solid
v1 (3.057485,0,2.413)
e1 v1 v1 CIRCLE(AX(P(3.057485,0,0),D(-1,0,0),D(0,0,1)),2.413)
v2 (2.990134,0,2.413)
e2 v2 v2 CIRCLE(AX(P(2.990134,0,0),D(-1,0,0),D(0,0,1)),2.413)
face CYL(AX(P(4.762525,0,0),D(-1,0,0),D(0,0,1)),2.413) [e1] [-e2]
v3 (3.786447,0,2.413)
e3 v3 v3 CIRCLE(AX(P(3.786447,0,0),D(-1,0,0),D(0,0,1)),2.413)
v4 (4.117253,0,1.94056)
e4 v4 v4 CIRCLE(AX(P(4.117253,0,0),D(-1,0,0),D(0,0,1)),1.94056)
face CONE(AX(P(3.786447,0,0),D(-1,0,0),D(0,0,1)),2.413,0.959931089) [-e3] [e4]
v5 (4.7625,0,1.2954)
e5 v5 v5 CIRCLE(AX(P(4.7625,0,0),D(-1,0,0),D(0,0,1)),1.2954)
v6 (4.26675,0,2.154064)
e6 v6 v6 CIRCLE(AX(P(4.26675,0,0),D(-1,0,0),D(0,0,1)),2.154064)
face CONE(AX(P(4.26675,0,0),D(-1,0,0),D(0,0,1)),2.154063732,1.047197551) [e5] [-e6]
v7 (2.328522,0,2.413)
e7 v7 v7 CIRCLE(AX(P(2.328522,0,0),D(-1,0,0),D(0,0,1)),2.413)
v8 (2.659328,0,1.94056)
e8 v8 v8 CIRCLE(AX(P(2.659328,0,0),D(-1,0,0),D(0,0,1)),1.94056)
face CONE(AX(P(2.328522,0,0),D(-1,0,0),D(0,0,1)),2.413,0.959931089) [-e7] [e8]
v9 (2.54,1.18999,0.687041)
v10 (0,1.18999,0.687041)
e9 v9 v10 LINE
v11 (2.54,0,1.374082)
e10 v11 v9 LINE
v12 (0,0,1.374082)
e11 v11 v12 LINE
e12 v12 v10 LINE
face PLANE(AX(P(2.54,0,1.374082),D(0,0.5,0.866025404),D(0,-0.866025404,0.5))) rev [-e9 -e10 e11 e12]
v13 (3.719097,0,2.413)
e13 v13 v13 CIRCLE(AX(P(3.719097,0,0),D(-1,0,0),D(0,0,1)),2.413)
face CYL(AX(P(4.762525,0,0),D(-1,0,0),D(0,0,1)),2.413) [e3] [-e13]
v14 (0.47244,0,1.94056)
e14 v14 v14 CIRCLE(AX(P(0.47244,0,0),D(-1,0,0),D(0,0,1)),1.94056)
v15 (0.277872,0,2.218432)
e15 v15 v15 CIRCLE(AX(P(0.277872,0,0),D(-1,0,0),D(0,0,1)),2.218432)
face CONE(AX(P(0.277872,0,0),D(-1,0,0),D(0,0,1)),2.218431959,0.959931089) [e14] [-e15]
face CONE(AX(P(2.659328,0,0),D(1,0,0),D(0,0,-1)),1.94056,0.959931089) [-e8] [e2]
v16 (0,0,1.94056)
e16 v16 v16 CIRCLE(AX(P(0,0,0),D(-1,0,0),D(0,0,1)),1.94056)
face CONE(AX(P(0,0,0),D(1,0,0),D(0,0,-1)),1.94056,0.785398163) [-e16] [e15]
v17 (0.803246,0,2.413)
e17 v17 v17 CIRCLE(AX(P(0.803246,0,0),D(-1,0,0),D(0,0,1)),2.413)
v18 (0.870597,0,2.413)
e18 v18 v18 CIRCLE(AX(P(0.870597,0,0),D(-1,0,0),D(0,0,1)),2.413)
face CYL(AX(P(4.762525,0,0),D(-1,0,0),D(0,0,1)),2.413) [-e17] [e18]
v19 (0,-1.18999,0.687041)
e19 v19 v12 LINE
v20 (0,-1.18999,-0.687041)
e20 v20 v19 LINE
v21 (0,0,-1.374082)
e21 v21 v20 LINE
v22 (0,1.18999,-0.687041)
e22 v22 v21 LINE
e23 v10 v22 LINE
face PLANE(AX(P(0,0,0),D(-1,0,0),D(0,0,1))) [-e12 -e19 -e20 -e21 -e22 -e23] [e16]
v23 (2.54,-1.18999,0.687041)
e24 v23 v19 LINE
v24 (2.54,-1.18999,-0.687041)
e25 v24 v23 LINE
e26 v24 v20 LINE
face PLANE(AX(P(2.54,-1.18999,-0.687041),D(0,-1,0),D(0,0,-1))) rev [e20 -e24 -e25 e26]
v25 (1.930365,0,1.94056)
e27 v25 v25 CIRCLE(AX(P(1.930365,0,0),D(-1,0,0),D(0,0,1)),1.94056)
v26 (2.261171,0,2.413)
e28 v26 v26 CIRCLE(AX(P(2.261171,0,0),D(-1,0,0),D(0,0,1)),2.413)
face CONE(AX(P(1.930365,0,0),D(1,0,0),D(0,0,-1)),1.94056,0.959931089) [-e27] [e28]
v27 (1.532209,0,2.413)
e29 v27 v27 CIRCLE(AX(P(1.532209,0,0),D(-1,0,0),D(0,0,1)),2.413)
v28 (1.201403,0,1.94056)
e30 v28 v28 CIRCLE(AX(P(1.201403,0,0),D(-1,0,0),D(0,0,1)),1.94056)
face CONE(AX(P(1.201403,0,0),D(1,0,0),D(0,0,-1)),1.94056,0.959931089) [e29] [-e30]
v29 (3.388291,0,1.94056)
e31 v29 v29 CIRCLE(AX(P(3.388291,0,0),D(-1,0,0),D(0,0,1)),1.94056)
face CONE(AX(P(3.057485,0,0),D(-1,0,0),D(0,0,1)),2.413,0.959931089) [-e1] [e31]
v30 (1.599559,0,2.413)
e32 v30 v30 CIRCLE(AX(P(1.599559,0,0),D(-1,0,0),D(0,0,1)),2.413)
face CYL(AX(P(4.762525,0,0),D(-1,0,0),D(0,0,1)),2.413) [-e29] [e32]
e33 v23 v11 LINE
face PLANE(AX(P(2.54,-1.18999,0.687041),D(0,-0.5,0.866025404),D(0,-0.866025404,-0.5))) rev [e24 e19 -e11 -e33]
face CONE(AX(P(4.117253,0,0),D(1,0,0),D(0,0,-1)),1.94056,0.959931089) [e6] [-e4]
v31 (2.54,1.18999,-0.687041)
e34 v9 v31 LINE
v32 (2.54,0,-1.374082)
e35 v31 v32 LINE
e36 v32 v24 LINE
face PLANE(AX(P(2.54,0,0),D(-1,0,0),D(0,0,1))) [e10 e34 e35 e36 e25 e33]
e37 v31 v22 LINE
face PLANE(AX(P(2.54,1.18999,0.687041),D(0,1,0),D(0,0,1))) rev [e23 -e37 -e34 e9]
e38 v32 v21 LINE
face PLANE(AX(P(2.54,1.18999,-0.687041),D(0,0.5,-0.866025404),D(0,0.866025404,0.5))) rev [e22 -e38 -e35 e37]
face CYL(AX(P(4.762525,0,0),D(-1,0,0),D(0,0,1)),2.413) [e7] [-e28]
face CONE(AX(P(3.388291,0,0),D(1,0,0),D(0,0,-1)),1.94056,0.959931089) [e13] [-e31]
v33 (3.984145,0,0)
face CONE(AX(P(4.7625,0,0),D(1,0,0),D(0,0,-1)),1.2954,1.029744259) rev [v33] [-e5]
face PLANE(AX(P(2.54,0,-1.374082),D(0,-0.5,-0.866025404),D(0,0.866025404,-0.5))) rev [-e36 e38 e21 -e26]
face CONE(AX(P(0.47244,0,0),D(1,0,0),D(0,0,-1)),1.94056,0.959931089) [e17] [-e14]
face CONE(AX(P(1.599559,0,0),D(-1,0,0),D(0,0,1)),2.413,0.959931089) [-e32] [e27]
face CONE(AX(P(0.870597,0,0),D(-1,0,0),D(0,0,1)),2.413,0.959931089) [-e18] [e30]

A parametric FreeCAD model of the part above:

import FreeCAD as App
import Part
import Sketcher
Q = App.Units.Quantity

doc = App.newDocument("Part")
body = doc.addObject("PartDesign::Body", "Body")

# Sketch on XY plane
sketch1 = body.newObject("Sketcher::SketchObject", "Sketch")
sketch1.AttachmentSupport = (doc.getObject("XY_Plane"), [""])
sketch1.MapMode = "FlatFace"
sketch1.addGeometry([
    Part.LineSegment(App.Vector(4.76, 1.3, 0), App.Vector(3.98, 0, 0)),  # 0
    Part.LineSegment(App.Vector(3.98, 0, 0), App.Vector(0, 0, 0)),  # 1
    Part.LineSegment(App.Vector(0, 0, 0), App.Vector(0, 1.94, 0)),  # 2
    Part.LineSegment(App.Vector(0, 1.94, 0), App.Vector(0.28, 2.22, 0)),  # 3
    Part.LineSegment(App.Vector(0.28, 2.22, 0), App.Vector(0.47, 1.94, 0)),  # 4
    Part.LineSegment(App.Vector(0.47, 1.94, 0), App.Vector(0.8, 2.41, 0)),  # 5
    Part.LineSegment(App.Vector(0.8, 2.41, 0), App.Vector(0.87, 2.41, 0)),  # 6
    Part.LineSegment(App.Vector(0.87, 2.41, 0), App.Vector(1.2, 1.94, 0)),  # 7
    Part.LineSegment(App.Vector(1.2, 1.94, 0), App.Vector(1.53, 2.41, 0)),  # 8
    Part.LineSegment(App.Vector(1.53, 2.41, 0), App.Vector(1.6, 2.41, 0)),  # 9
    Part.LineSegment(App.Vector(1.6, 2.41, 0), App.Vector(1.93, 1.94, 0)),  # 10
    Part.LineSegment(App.Vector(1.93, 1.94, 0), App.Vector(2.26, 2.41, 0)),  # 11
    Part.LineSegment(App.Vector(2.26, 2.41, 0), App.Vector(2.33, 2.41, 0)),  # 12
    Part.LineSegment(App.Vector(2.33, 2.41, 0), App.Vector(2.66, 1.94, 0)),  # 13
    Part.LineSegment(App.Vector(2.66, 1.94, 0), App.Vector(2.99, 2.41, 0)),  # 14
    Part.LineSegment(App.Vector(2.99, 2.41, 0), App.Vector(3.06, 2.41, 0)),  # 15
    Part.LineSegment(App.Vector(3.06, 2.41, 0), App.Vector(3.39, 1.94, 0)),  # 16
    Part.LineSegment(App.Vector(3.39, 1.94, 0), App.Vector(3.72, 2.41, 0)),  # 17
    Part.LineSegment(App.Vector(3.72, 2.41, 0), App.Vector(3.79, 2.41, 0)),  # 18
    Part.LineSegment(App.Vector(3.79, 2.41, 0), App.Vector(4.12, 1.94, 0)),  # 19
    Part.LineSegment(App.Vector(4.12, 1.94, 0), App.Vector(4.27, 2.15, 0)),  # 20
    Part.LineSegment(App.Vector(4.27, 2.15, 0), App.Vector(4.76, 1.3, 0)),  # 21
], False)
sketch1.addConstraint([
    Sketcher.Constraint("Coincident", 0, 2, 1, 1),
    Sketcher.Constraint("Coincident", 1, 2, 2, 1),
    Sketcher.Constraint("Coincident", 2, 2, 3, 1),
    Sketcher.Constraint("Coincident", 3, 2, 4, 1),
    Sketcher.Constraint("Coincident", 4, 2, 5, 1),
    Sketcher.Constraint("Coincident", 5, 2, 6, 1),
    Sketcher.Constraint("Coincident", 6, 2, 7, 1),
    Sketcher.Constraint("Coincident", 7, 2, 8, 1),
    Sketcher.Constraint("Coincident", 8, 2, 9, 1),
    Sketcher.Constraint("Coincident", 9, 2, 10, 1),
    Sketcher.Constraint("Coincident", 10, 2, 11, 1),
    Sketcher.Constraint("Coincident", 11, 2, 12, 1),
    Sketcher.Constraint("Coincident", 12, 2, 13, 1),
    Sketcher.Constraint("Coincident", 13, 2, 14, 1),
    Sketcher.Constraint("Coincident", 14, 2, 15, 1),
    Sketcher.Constraint("Coincident", 15, 2, 16, 1),
    Sketcher.Constraint("Coincident", 16, 2, 17, 1),
    Sketcher.Constraint("Coincident", 17, 2, 18, 1),
    Sketcher.Constraint("Coincident", 18, 2, 19, 1),
    Sketcher.Constraint("Coincident", 19, 2, 20, 1),
    Sketcher.Constraint("Coincident", 20, 2, 21, 1),
    Sketcher.Constraint("Coincident", 21, 2, 0, 1),
    Sketcher.Constraint("Horizontal", 1),
    Sketcher.Constraint("Vertical", 2),
    Sketcher.Constraint("Horizontal", 6),
    Sketcher.Constraint("Horizontal", 9),
    Sketcher.Constraint("Horizontal", 12),
    Sketcher.Constraint("Horizontal", 15),
    Sketcher.Constraint("Horizontal", 18),
    Sketcher.Constraint("Coincident", 1, 2, -1, 1),
    Sketcher.Constraint("Parallel", 4, 7),
    Sketcher.Constraint("Parallel", 5, 8),
    Sketcher.Constraint("Parallel", 7, 10),
    Sketcher.Constraint("Parallel", 8, 11),
    Sketcher.Constraint("Parallel", 10, 13),
    Sketcher.Constraint("Parallel", 11, 14),
    Sketcher.Constraint("Parallel", 13, 16),
    Sketcher.Constraint("Parallel", 14, 17),
    Sketcher.Constraint("Parallel", 16, 19),
    Sketcher.Constraint("Parallel", 17, 20),
    Sketcher.Constraint("Horizontal", 2, 2, 4, 2),
    Sketcher.Constraint("Horizontal", 4, 2, 7, 2),
    Sketcher.Constraint("Horizontal", 6, 2, 8, 2),
    Sketcher.Constraint("Horizontal", 7, 2, 10, 2),
    Sketcher.Constraint("Horizontal", 9, 2, 11, 2),
    Sketcher.Constraint("Horizontal", 10, 2, 13, 2),
    Sketcher.Constraint("Horizontal", 12, 2, 14, 2),
    Sketcher.Constraint("Horizontal", 13, 2, 16, 2),
    Sketcher.Constraint("Horizontal", 15, 2, 17, 2),
    Sketcher.Constraint("Horizontal", 16, 2, 19, 2),
    Sketcher.Constraint("Equal", 6, 9),
    Sketcher.Constraint("Equal", 9, 12),
    Sketcher.Constraint("Equal", 12, 15),
    Sketcher.Constraint("Equal", 15, 18),
    Sketcher.Constraint("Equal", 5, 7),
    Sketcher.Constraint("Angle", 0, Q("-121 deg")),
    Sketcher.Constraint("Angle", 3, Q("45 deg")),
    Sketcher.Constraint("Angle", 4, Q("-55 deg")),
    Sketcher.Constraint("Angle", 21, Q("-60 deg")),
    Sketcher.Constraint("DistanceY", 2, 1, 2, 2, Q("0.0764 in")),
    Sketcher.Constraint("DistanceY", -1, 1, 5, 2, Q("0.095 in")),
    Sketcher.Constraint("DistanceX", -1, 1, 21, 2, Q("0.1875 in")),
    Sketcher.Constraint("DistanceY", -1, 1, 21, 2, Q("0.051 in")),
    Sketcher.Constraint("DistanceX", -1, 1, 4, 2, Q("0.0186 in")),
    Sketcher.Constraint("Distance", 21, Q("0.991499 mm")),
])
revolution = body.newObject("PartDesign::Revolution", "Revolution")
revolution.Profile = sketch1
revolution.ReferenceAxis = (sketch1, ["H_Axis"])
revolution.Angle = 360

# Sketch on YZ plane
sketch2 = body.newObject("Sketcher::SketchObject", "Sketch001")
sketch2.AttachmentSupport = (doc.getObject("YZ_Plane"), [""])
sketch2.MapMode = "FlatFace"
sketch2.addGeometry([
    Part.LineSegment(App.Vector(0, 1.4, 0), App.Vector(1.2, 0.7, 0)),  # 0
    Part.LineSegment(App.Vector(1.2, 0.7, 0), App.Vector(1.2, -0.7, 0)),  # 1
    Part.LineSegment(App.Vector(1.2, -0.7, 0), App.Vector(0, -1.4, 0)),  # 2
    Part.LineSegment(App.Vector(0, -1.4, 0), App.Vector(-1.2, -0.7, 0)),  # 3
    Part.LineSegment(App.Vector(-1.2, -0.7, 0), App.Vector(-1.2, 0.7, 0)),  # 4
    Part.LineSegment(App.Vector(-1.2, 0.7, 0), App.Vector(0, 1.4, 0)),  # 5
], False)
sketch2.addConstraint([
    Sketcher.Constraint("Coincident", 0, 2, 1, 1),
    Sketcher.Constraint("Coincident", 1, 2, 2, 1),
    Sketcher.Constraint("Coincident", 2, 2, 3, 1),
    Sketcher.Constraint("Coincident", 3, 2, 4, 1),
    Sketcher.Constraint("Coincident", 4, 2, 5, 1),
    Sketcher.Constraint("Coincident", 5, 2, 0, 1),
    Sketcher.Constraint("Vertical", 1),
    Sketcher.Constraint("Vertical", 4),
    Sketcher.Constraint("Symmetric", 0, 2, 3, 2, -1, 1),
    Sketcher.Constraint("Symmetric", 2, 2, 5, 2, -1, 1),
    Sketcher.Constraint("PointOnObject", 2, 2, -2),
    Sketcher.Constraint("Parallel", 2, 5),
    Sketcher.Constraint("Horizontal", 1, 2, 3, 2),
    Sketcher.Constraint("Angle", 0, Q("-30 deg")),
    Sketcher.Constraint("DistanceX", 3, 2, 1, 2, Q("0.0937 in")),
    Sketcher.Constraint("DistanceY", 1, 2, 1, 1, Q("1.374082 mm")),
])
pocket1 = body.newObject("PartDesign::Pocket", "Pocket")
pocket1.Profile = sketch2
pocket1.Length = Q("0.1 in")
pocket1.Reversed = True

doc.recompute()
